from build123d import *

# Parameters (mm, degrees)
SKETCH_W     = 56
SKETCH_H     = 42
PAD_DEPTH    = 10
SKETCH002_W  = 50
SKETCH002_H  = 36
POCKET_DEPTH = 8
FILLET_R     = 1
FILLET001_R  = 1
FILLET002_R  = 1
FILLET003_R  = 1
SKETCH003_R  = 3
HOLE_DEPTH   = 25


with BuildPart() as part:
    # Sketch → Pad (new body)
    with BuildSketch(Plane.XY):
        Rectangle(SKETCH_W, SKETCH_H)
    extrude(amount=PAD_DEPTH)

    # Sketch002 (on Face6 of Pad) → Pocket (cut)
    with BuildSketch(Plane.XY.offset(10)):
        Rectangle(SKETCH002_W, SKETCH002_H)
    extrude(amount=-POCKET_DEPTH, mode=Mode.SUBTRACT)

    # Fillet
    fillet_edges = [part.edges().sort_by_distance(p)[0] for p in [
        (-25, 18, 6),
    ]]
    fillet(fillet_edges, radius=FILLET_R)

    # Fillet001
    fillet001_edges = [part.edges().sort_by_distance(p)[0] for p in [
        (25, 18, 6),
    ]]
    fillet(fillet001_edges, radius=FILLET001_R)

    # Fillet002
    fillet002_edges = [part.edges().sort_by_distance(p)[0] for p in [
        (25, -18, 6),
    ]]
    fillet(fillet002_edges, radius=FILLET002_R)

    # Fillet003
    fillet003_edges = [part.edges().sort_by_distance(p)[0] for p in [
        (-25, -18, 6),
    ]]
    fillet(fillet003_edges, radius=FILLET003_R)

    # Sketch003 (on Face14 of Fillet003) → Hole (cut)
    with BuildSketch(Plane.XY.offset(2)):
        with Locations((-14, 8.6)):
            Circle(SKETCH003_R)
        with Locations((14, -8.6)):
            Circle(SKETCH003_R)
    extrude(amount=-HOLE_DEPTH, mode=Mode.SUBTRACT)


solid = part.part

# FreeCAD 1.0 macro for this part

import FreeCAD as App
import Part
import Sketcher
from FreeCAD import Vector


def edges_at(feature, points):
    """Names of the edges that pass closest to the given points."""
    edges = feature.Shape.Edges
    near = lambda p: min(range(len(edges)), key=lambda i: edges[i].distToShape(Part.Vertex(*p))[0])
    return sorted({f"Edge{near(p) + 1}" for p in points})


def add_polygon(sketch, points):
    """Adds a closed chain of lines whose ends are joined by coincident constraints."""
    first, n = sketch.GeometryCount, len(points)
    for a, b in zip(points, points[1:] + points[:1]):
        sketch.addGeometry(Part.LineSegment(App.Vector(*a, 0), App.Vector(*b, 0)), False)
    for i in range(n):
        sketch.addConstraint(Sketcher.Constraint("Coincident", first + i, 2, first + (i + 1) % n, 1))

doc = App.newDocument("Part")
body = doc.addObject("PartDesign::Body", "Body")

# Sketch on XY plane
sketch1 = body.newObject("Sketcher::SketchObject", "Sketch")
sketch1.AttachmentSupport = (doc.getObject("XY_Plane"), [""])
sketch1.MapMode = "FlatFace"
add_polygon(sketch1, [(-28, 21), (-28, -21), (28, -21), (28, 21)])  # lines 0-3
sketch1.addConstraint(Sketcher.Constraint("Vertical", 0))
sketch1.addConstraint(Sketcher.Constraint("Horizontal", 1))
sketch1.addConstraint(Sketcher.Constraint("Vertical", 2))
sketch1.addConstraint(Sketcher.Constraint("Horizontal", 3))
sketch1.addConstraint(Sketcher.Constraint("Symmetric", 0, 2, 2, 2, -1, 1))
sketch1.addConstraint(Sketcher.Constraint("DistanceX", 1, 1, 1, 2, 56.0))
sketch1.addConstraint(Sketcher.Constraint("DistanceY", 0, 2, 0, 1, 42.0))
pad1 = body.newObject("PartDesign::Pad", "Pad")
pad1.Profile = sketch1
pad1.Length = 10

# Sketch on XY plane
sketch2 = body.newObject("Sketcher::SketchObject", "Sketch001")
sketch2.AttachmentSupport = (doc.getObject("XY_Plane"), [""])
sketch2.MapMode = "FlatFace"
sketch2.AttachmentOffset = App.Placement(Vector(0, 0, 10), App.Rotation())
add_polygon(sketch2, [(-25, 18), (-25, -18), (25, -18), (25, 18)])  # lines 0-3
sketch2.addConstraint(Sketcher.Constraint("Vertical", 0))
sketch2.addConstraint(Sketcher.Constraint("Horizontal", 1))
sketch2.addConstraint(Sketcher.Constraint("Vertical", 2))
sketch2.addConstraint(Sketcher.Constraint("Horizontal", 3))
sketch2.addConstraint(Sketcher.Constraint("Symmetric", 0, 2, 2, 2, -1, 1))
sketch2.addConstraint(Sketcher.Constraint("DistanceX", 1, 1, 1, 2, 50.0))
sketch2.addConstraint(Sketcher.Constraint("DistanceY", 0, 2, 0, 1, 36.0))
pocket1 = body.newObject("PartDesign::Pocket", "Pocket")
pocket1.Profile = sketch2
pocket1.Length = 8
doc.recompute()

fillet = body.newObject("PartDesign::Fillet", "Fillet")
fillet.Base = (pocket1, edges_at(pocket1, [(-25, 18, 6)]))
fillet.Radius = 1
doc.recompute()

fillet2 = body.newObject("PartDesign::Fillet", "Fillet001")
fillet2.Base = (fillet, edges_at(fillet, [(25, 18, 6)]))
fillet2.Radius = 1
doc.recompute()

fillet3 = body.newObject("PartDesign::Fillet", "Fillet002")
fillet3.Base = (fillet2, edges_at(fillet2, [(25, -18, 6)]))
fillet3.Radius = 1
doc.recompute()

fillet4 = body.newObject("PartDesign::Fillet", "Fillet003")
fillet4.Base = (fillet3, edges_at(fillet3, [(-25, -18, 6)]))
fillet4.Radius = 1

# Sketch on XY plane
sketch3 = body.newObject("Sketcher::SketchObject", "Sketch002")
sketch3.AttachmentSupport = (doc.getObject("XY_Plane"), [""])
sketch3.MapMode = "FlatFace"
sketch3.AttachmentOffset = App.Placement(Vector(0, 0, 2), App.Rotation())
sketch3.addGeometry(Part.Circle(Vector(-14, 8.6, 0), Vector(0, 0, 1), 3), False)
sketch3.addGeometry(Part.Circle(Vector(14, -8.6, 0), Vector(0, 0, 1), 3), False)
sketch3.addConstraint(Sketcher.Constraint("Equal", 0, 1))
sketch3.addConstraint(Sketcher.Constraint("Symmetric", 0, 3, 1, 3, -1, 1))
sketch3.addConstraint(Sketcher.Constraint("Diameter", 0, 6.0))
sketch3.addConstraint(Sketcher.Constraint("DistanceX", 0, 3, -1, 1, 14.0))
sketch3.addConstraint(Sketcher.Constraint("DistanceY", -1, 1, 0, 3, 8.6))
pocket2 = body.newObject("PartDesign::Pocket", "Pocket001")
pocket2.Profile = sketch3
pocket2.Length = 25

doc.recompute()
